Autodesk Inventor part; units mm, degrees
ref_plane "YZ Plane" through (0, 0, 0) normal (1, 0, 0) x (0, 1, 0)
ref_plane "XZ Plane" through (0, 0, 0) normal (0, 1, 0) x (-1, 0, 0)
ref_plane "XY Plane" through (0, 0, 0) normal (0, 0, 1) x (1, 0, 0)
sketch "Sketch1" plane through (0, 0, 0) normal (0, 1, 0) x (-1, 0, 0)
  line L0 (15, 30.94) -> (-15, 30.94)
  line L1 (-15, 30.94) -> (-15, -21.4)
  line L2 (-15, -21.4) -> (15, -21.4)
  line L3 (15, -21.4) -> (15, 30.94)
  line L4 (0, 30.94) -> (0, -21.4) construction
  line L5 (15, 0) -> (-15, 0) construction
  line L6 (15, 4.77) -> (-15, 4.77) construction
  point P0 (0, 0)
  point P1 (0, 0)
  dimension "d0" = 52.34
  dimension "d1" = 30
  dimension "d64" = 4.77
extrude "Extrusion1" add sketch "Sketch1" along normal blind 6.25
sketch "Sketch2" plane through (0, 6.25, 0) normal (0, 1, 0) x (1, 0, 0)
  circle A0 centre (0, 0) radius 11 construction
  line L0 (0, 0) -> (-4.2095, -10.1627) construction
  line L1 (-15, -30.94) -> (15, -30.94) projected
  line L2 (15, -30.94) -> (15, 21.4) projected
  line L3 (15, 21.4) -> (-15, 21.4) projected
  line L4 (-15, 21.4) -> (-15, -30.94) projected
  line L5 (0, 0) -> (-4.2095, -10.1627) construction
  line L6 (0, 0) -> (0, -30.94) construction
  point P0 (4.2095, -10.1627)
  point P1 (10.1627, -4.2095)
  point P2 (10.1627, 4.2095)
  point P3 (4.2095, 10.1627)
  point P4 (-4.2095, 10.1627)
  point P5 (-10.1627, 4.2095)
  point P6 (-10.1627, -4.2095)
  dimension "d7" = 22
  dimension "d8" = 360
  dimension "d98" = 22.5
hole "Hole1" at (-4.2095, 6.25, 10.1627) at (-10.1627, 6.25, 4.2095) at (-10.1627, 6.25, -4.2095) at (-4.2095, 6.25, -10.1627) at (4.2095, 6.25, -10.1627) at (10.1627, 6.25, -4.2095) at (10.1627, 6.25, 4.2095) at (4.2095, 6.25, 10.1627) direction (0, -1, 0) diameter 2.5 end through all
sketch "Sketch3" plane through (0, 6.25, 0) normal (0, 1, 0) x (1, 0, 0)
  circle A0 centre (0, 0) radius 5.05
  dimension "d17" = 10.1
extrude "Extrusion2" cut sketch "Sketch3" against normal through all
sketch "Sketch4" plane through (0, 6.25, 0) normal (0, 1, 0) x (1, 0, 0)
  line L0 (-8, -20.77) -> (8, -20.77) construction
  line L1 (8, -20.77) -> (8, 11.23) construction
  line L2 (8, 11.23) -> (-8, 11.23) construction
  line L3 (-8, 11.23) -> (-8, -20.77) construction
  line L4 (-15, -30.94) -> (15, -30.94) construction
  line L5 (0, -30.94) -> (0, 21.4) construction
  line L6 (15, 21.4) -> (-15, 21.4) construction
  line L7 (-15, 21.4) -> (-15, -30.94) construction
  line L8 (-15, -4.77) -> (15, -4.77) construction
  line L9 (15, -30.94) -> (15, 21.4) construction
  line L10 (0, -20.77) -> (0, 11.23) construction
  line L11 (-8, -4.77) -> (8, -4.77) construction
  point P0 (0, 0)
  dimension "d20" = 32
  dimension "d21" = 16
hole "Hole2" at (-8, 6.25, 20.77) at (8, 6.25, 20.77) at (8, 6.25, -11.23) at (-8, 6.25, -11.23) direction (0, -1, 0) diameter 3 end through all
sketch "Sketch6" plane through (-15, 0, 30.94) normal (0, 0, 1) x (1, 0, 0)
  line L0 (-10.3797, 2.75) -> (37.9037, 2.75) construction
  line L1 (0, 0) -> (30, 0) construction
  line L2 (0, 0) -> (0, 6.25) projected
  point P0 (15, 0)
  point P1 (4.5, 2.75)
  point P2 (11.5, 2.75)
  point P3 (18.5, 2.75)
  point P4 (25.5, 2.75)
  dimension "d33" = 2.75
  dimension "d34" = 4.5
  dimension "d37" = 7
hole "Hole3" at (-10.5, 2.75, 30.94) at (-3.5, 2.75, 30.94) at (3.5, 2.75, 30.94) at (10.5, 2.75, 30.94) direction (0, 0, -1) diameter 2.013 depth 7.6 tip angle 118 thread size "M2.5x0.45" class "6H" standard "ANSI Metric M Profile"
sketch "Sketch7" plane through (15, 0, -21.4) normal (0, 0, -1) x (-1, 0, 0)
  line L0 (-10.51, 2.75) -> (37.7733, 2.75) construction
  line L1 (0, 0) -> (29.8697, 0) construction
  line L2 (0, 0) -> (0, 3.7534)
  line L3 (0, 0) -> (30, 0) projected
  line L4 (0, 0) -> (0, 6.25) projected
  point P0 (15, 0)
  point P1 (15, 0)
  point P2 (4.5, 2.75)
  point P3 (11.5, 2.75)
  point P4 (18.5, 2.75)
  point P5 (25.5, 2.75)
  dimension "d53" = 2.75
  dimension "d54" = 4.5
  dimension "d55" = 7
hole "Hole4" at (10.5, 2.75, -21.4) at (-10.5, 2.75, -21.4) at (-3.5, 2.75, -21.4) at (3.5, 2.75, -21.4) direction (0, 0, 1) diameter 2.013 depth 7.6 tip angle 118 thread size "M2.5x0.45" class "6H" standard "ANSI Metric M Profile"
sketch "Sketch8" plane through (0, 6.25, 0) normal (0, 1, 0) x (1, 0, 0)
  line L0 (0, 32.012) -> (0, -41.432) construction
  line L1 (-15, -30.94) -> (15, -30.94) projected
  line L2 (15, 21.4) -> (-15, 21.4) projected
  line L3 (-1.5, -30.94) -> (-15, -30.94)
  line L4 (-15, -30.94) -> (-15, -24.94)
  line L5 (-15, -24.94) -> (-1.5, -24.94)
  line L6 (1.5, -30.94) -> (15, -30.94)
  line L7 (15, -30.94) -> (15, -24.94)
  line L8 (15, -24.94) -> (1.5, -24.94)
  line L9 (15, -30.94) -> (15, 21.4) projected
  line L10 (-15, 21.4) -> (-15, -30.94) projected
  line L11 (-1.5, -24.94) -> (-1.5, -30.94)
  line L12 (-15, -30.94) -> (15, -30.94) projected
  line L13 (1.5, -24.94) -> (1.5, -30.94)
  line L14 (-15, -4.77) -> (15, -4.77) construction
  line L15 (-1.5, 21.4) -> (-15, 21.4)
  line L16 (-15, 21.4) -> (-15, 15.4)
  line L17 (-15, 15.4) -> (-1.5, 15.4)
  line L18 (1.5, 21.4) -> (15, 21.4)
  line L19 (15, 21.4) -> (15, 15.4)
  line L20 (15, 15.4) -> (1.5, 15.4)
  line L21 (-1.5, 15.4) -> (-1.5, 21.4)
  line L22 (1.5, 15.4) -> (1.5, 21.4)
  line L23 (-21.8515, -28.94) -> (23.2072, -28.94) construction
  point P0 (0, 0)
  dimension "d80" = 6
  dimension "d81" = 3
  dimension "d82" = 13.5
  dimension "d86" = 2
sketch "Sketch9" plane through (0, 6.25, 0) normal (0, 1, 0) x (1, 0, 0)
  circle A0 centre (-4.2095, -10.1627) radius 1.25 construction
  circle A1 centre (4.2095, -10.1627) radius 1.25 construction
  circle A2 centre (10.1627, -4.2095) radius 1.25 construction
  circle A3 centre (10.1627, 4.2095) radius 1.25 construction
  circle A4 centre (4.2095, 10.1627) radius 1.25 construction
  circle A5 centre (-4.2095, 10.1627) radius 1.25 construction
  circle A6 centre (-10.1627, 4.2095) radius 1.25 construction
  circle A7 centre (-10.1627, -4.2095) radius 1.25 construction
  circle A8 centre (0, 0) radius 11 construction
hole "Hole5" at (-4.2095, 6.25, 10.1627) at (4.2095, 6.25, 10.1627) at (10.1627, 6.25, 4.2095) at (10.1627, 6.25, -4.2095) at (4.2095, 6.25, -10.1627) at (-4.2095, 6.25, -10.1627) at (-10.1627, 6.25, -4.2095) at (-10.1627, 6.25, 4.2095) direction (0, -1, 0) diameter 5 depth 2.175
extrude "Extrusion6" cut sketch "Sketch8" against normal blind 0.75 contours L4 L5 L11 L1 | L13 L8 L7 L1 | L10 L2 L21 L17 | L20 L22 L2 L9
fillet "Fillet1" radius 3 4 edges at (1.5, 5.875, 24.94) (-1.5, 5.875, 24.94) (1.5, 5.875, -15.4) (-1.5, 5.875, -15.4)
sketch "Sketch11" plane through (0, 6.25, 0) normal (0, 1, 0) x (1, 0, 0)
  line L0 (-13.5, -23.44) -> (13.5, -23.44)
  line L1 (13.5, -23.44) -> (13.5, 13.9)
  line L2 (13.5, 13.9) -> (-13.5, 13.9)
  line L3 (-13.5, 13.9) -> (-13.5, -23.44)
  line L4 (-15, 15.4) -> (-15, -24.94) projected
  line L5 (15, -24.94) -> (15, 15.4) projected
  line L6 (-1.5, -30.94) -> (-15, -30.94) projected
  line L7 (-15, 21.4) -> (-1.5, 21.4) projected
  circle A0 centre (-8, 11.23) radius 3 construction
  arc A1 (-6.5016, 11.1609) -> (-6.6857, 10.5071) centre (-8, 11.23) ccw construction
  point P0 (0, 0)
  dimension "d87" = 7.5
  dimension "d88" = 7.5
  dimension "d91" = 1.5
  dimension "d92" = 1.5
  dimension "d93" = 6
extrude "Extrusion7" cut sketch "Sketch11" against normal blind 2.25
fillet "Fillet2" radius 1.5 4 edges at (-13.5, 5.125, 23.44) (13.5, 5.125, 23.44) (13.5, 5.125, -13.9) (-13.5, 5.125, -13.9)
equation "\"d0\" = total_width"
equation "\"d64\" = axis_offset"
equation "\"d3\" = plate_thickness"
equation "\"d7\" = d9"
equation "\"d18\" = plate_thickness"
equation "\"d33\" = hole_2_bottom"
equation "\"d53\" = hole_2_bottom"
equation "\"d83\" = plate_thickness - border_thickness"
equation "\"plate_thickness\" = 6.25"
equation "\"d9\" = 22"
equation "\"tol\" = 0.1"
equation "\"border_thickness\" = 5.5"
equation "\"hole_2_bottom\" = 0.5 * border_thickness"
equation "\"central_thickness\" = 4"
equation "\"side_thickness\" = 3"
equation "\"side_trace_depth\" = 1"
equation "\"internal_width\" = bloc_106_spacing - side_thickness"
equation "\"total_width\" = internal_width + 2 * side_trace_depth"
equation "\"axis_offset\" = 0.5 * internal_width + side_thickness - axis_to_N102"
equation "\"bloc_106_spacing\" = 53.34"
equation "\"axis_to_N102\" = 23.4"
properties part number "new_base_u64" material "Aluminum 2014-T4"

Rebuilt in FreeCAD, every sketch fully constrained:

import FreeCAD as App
import Part
import Sketcher
from FreeCAD import Vector


def edges_at(feature, points):
    """Names of the edges that pass closest to the given points."""
    edges = feature.Shape.Edges
    near = lambda p: min(range(len(edges)), key=lambda i: edges[i].distToShape(Part.Vertex(*p))[0])
    return sorted({f"Edge{near(p) + 1}" for p in points})

doc = App.newDocument("Part")
params = doc.addObject("Spreadsheet::Sheet", "Params")
for row, (alias, value) in enumerate([
    ("sketch1_width", "30 mm"),
    ("sketch1_height", "52.34 mm"),
    ("pad1_length", "6.25 mm"),
    ("sketch2_diameter", "2.5 mm"),
    ("hole_diameter", "2.5 mm"),
    ("sketch3_diameter", "10.1 mm"),
    ("sketch4_diameter", "3 mm"),
    ("hole2_diameter", "3 mm"),
    ("hole3_diameter", "2.013 mm"),
    ("hole3_depth", "7.6 mm"),
    ("hole4_diameter", "2.013 mm"),
    ("hole4_depth", "7.6 mm"),
    ("sketch7_diameter", "5 mm"),
    ("hole5_diameter", "5 mm"),
    ("hole5_depth", "2.175 mm"),
    ("sketch8_height", "6 mm"),
    ("sketch8_width", "13.5 mm"),
    ("pocket2_length", "0.75 mm"),
    ("fillet_radius", "3 mm"),
    ("sketch9_width", "27 mm"),
    ("sketch9_height", "37.34 mm"),
    ("pocket3_length", "2.25 mm"),
    ("fillet2_radius", "1.5 mm"),
], start=1):
    params.set(f"A{row}", alias)
    params.set(f"B{row}", "=" + value)
    params.setAlias(f"B{row}", alias)

body = doc.addObject("PartDesign::Body", "Body")

# Sketch on XZ plane
sketch1 = body.newObject("Sketcher::SketchObject", "Sketch")
sketch1.AttachmentSupport = (doc.getObject("XZ_Plane"), [""])
sketch1.MapMode = "FlatFace"
sketch1.addGeometry([
    Part.LineSegment(Vector(-15, -21.4, 0), Vector(-15, 30.94, 0)),
    Part.LineSegment(Vector(-15, 30.94, 0), Vector(15, 30.94, 0)),
    Part.LineSegment(Vector(15, 30.94, 0), Vector(15, -21.4, 0)),
    Part.LineSegment(Vector(15, -21.4, 0), Vector(-15, -21.4, 0)),
], False)
sketch1.addConstraint([
    Sketcher.Constraint("Coincident", 0, 2, 1, 1),
    Sketcher.Constraint("Coincident", 1, 2, 2, 1),
    Sketcher.Constraint("Coincident", 2, 2, 3, 1),
    Sketcher.Constraint("Coincident", 3, 2, 0, 1),
    Sketcher.Constraint("Vertical", 0),
    Sketcher.Constraint("Horizontal", 1),
    Sketcher.Constraint("Vertical", 2),
    Sketcher.Constraint("Horizontal", 3),
    Sketcher.Constraint("DistanceX", 1, 1, 1, 2, 30.0),
    Sketcher.Constraint("DistanceY", 0, 1, 0, 2, 52.34),
    Sketcher.Constraint("DistanceX", 0, 2, -1, 1, 15.0),
    Sketcher.Constraint("DistanceY", 2, 2, -1, 1, 21.4),
])
sketch1.setExpression("Constraints[8]", "Params.sketch1_width")
sketch1.setExpression("Constraints[9]", "Params.sketch1_height")
pad1 = body.newObject("PartDesign::Pad", "Pad")
pad1.Profile = sketch1
pad1.setExpression("Length", "Params.pad1_length")
pad1.Reversed = True

# Sketch on XZ plane
sketch2 = body.newObject("Sketcher::SketchObject", "Sketch001")
sketch2.AttachmentSupport = (doc.getObject("XZ_Plane"), [""])
sketch2.MapMode = "FlatFace"
sketch2.AttachmentOffset = App.Placement(Vector(0, 0, -6.25), App.Rotation())
sketch2.addGeometry([
    Part.Circle(Vector(-4.2095, 10.1627, 0), Vector(0, 0, 1), 1.25),  # 0
    Part.Circle(Vector(-10.1627, 4.2095, 0), Vector(0, 0, 1), 1.25),  # 1
    Part.Circle(Vector(-10.1627, -4.2095, 0), Vector(0, 0, 1), 1.25),  # 2
    Part.Circle(Vector(-4.2095, -10.1627, 0), Vector(0, 0, 1), 1.25),  # 3
    Part.Circle(Vector(4.2095, -10.1627, 0), Vector(0, 0, 1), 1.25),  # 4
    Part.Circle(Vector(10.1627, -4.2095, 0), Vector(0, 0, 1), 1.25),  # 5
    Part.Circle(Vector(10.1627, 4.2095, 0), Vector(0, 0, 1), 1.25),  # 6
    Part.Circle(Vector(4.2095, 10.1627, 0), Vector(0, 0, 1), 1.25),  # 7
], False)
sketch2.addConstraint([
    Sketcher.Constraint("Equal", 0, 1),
    Sketcher.Constraint("Equal", 1, 2),
    Sketcher.Constraint("Equal", 2, 3),
    Sketcher.Constraint("Equal", 3, 4),
    Sketcher.Constraint("Equal", 4, 5),
    Sketcher.Constraint("Equal", 5, 6),
    Sketcher.Constraint("Equal", 6, 7),
    Sketcher.Constraint("Symmetric", 0, 3, 4, 3, -1, 1),
    Sketcher.Constraint("Symmetric", 1, 3, 5, 3, -1, 1),
    Sketcher.Constraint("Symmetric", 2, 3, 6, 3, -1, 1),
    Sketcher.Constraint("Symmetric", 3, 3, 7, 3, -1, 1),
    Sketcher.Constraint("Symmetric", 3, 3, 4, 3, -2),
    Sketcher.Constraint("Symmetric", 2, 3, 5, 3, -2),
    Sketcher.Constraint("Diameter", 0, 2.5),
    Sketcher.Constraint("DistanceY", 2, 3, 1, 3, 8.419),
    Sketcher.Constraint("DistanceX", 3, 3, 4, 3, 8.419),
    Sketcher.Constraint("DistanceY", -1, 1, 0, 3, 10.1627),
    Sketcher.Constraint("DistanceX", 1, 3, -1, 1, 10.1627),
])
sketch2.setExpression("Constraints[13]", "Params.sketch2_diameter")
doc.recompute()
hole = body.newObject("PartDesign::Hole", "Hole")
hole.Profile = sketch2
hole.ThreadType = "None"
hole.setExpression("Diameter", "Params.hole_diameter")
hole.DepthType = "ThroughAll"
hole.Reversed = True

# Sketch on XZ plane
sketch3 = body.newObject("Sketcher::SketchObject", "Sketch002")
sketch3.AttachmentSupport = (doc.getObject("XZ_Plane"), [""])
sketch3.MapMode = "FlatFace"
sketch3.AttachmentOffset = App.Placement(Vector(0, 0, -6.25), App.Rotation())
sketch3.addGeometry(Part.Circle(Vector(0, 0, 0), Vector(0, 0, 1), 5.05), False)
sketch3.addConstraint([
    Sketcher.Constraint("Coincident", 0, 3, -1, 1),
    Sketcher.Constraint("Diameter", 0, 10.1),
])
sketch3.setExpression("Constraints[1]", "Params.sketch3_diameter")
pocket1 = body.newObject("PartDesign::Pocket", "Pocket")
pocket1.Profile = sketch3
pocket1.Type = "ThroughAll"
pocket1.Reversed = True

# Sketch on XZ plane
sketch4 = body.newObject("Sketcher::SketchObject", "Sketch003")
sketch4.AttachmentSupport = (doc.getObject("XZ_Plane"), [""])
sketch4.MapMode = "FlatFace"
sketch4.AttachmentOffset = App.Placement(Vector(0, 0, -6.25), App.Rotation())
sketch4.addGeometry([
    Part.Circle(Vector(-8, 20.77, 0), Vector(0, 0, 1), 1.5),
    Part.Circle(Vector(8, 20.77, 0), Vector(0, 0, 1), 1.5),
    Part.Circle(Vector(8, -11.23, 0), Vector(0, 0, 1), 1.5),
    Part.Circle(Vector(-8, -11.23, 0), Vector(0, 0, 1), 1.5),
], False)
sketch4.addConstraint([
    Sketcher.Constraint("Equal", 0, 1),
    Sketcher.Constraint("Equal", 1, 2),
    Sketcher.Constraint("Equal", 2, 3),
    Sketcher.Constraint("Symmetric", 0, 3, 1, 3, -2),
    Sketcher.Constraint("Symmetric", 2, 3, 3, 3, -2),
    Sketcher.Constraint("Vertical", 1, 3, 2, 3),
    Sketcher.Constraint("Diameter", 0, 3.0),
    Sketcher.Constraint("DistanceX", 0, 3, -1, 1, 8.0),
    Sketcher.Constraint("DistanceY", 2, 3, 1, 3, 32.0),
    Sketcher.Constraint("DistanceY", -1, 1, 0, 3, 20.77),
])
sketch4.setExpression("Constraints[6]", "Params.sketch4_diameter")
doc.recompute()
hole2 = body.newObject("PartDesign::Hole", "Hole001")
hole2.Profile = sketch4
hole2.ThreadType = "None"
hole2.setExpression("Diameter", "Params.hole2_diameter")
hole2.DepthType = "ThroughAll"
hole2.Reversed = True

# Sketch on XY plane
sketch5 = body.newObject("Sketcher::SketchObject", "Sketch004")
sketch5.AttachmentSupport = (doc.getObject("XY_Plane"), [""])
sketch5.MapMode = "FlatFace"
sketch5.AttachmentOffset = App.Placement(Vector(0, 0, 30.94), App.Rotation())
sketch5.addGeometry([
    Part.Circle(Vector(-10.5, 2.75, 0), Vector(0, 0, 1), 1.0065),
    Part.Circle(Vector(-3.5, 2.75, 0), Vector(0, 0, 1), 1.0065),
    Part.Circle(Vector(3.5, 2.75, 0), Vector(0, 0, 1), 1.0065),
    Part.Circle(Vector(10.5, 2.75, 0), Vector(0, 0, 1), 1.0065),
], False)
sketch5.addConstraint([
    Sketcher.Constraint("Equal", 0, 1),
    Sketcher.Constraint("Equal", 1, 2),
    Sketcher.Constraint("Equal", 2, 3),
    Sketcher.Constraint("Symmetric", 1, 3, 2, 3, -2),
    Sketcher.Constraint("Symmetric", 0, 3, 3, 3, -2),
    Sketcher.Constraint("Horizontal", 0, 3, 1, 3),
    Sketcher.Constraint("Diameter", 0, 2.013),
    Sketcher.Constraint("DistanceX", 0, 3, 1, 3, 7.0),
    Sketcher.Constraint("DistanceX", 1, 3, 2, 3, 7.0),
    Sketcher.Constraint("DistanceY", -1, 1, 0, 3, 2.75),
])
doc.recompute()
hole3 = body.newObject("PartDesign::Hole", "Hole002")
hole3.Profile = sketch5
hole3.ThreadType = "None"
hole3.setExpression("Diameter", "Params.hole3_diameter")
hole3.DepthType = "Dimension"
hole3.setExpression("Depth", "Params.hole3_depth")
hole3.DrillPoint = "Angled"
hole3.DrillPointAngle = 118

# Sketch on XY plane
sketch6 = body.newObject("Sketcher::SketchObject", "Sketch005")
sketch6.AttachmentSupport = (doc.getObject("XY_Plane"), [""])
sketch6.MapMode = "FlatFace"
sketch6.AttachmentOffset = App.Placement(Vector(0, 0, -21.4), App.Rotation())
sketch6.addGeometry([
    Part.Circle(Vector(10.5, 2.75, 0), Vector(0, 0, 1), 1.0065),
    Part.Circle(Vector(-10.5, 2.75, 0), Vector(0, 0, 1), 1.0065),
    Part.Circle(Vector(-3.5, 2.75, 0), Vector(0, 0, 1), 1.0065),
    Part.Circle(Vector(3.5, 2.75, 0), Vector(0, 0, 1), 1.0065),
], False)
sketch6.addConstraint([
    Sketcher.Constraint("Equal", 0, 1),
    Sketcher.Constraint("Equal", 1, 2),
    Sketcher.Constraint("Equal", 2, 3),
    Sketcher.Constraint("Symmetric", 0, 3, 1, 3, -2),
    Sketcher.Constraint("Symmetric", 2, 3, 3, 3, -2),
    Sketcher.Constraint("Horizontal", 1, 3, 2, 3),
    Sketcher.Constraint("Diameter", 0, 2.013),
    Sketcher.Constraint("DistanceX", 1, 3, 0, 3, 21.0),
    Sketcher.Constraint("DistanceX", 1, 3, 2, 3, 7.0),
    Sketcher.Constraint("DistanceY", -1, 1, 0, 3, 2.75),
])
doc.recompute()
hole4 = body.newObject("PartDesign::Hole", "Hole003")
hole4.Profile = sketch6
hole4.ThreadType = "None"
hole4.setExpression("Diameter", "Params.hole4_diameter")
hole4.DepthType = "Dimension"
hole4.setExpression("Depth", "Params.hole4_depth")
hole4.DrillPoint = "Angled"
hole4.DrillPointAngle = 118
hole4.Reversed = True

# Sketch on XZ plane
sketch7 = body.newObject("Sketcher::SketchObject", "Sketch006")
sketch7.AttachmentSupport = (doc.getObject("XZ_Plane"), [""])
sketch7.MapMode = "FlatFace"
sketch7.AttachmentOffset = App.Placement(Vector(0, 0, -6.25), App.Rotation())
sketch7.addGeometry([
    Part.Circle(Vector(-4.2095, 10.1627, 0), Vector(0, 0, 1), 2.5),  # 0
    Part.Circle(Vector(4.2095, 10.1627, 0), Vector(0, 0, 1), 2.5),  # 1
    Part.Circle(Vector(10.1627, 4.2095, 0), Vector(0, 0, 1), 2.5),  # 2
    Part.Circle(Vector(10.1627, -4.2095, 0), Vector(0, 0, 1), 2.5),  # 3
    Part.Circle(Vector(4.2095, -10.1627, 0), Vector(0, 0, 1), 2.5),  # 4
    Part.Circle(Vector(-4.2095, -10.1627, 0), Vector(0, 0, 1), 2.5),  # 5
    Part.Circle(Vector(-10.1627, -4.2095, 0), Vector(0, 0, 1), 2.5),  # 6
    Part.Circle(Vector(-10.1627, 4.2095, 0), Vector(0, 0, 1), 2.5),  # 7
], False)
sketch7.addConstraint([
    Sketcher.Constraint("Equal", 0, 1),
    Sketcher.Constraint("Equal", 1, 2),
    Sketcher.Constraint("Equal", 2, 3),
    Sketcher.Constraint("Equal", 3, 4),
    Sketcher.Constraint("Equal", 4, 5),
    Sketcher.Constraint("Equal", 5, 6),
    Sketcher.Constraint("Equal", 6, 7),
    Sketcher.Constraint("Symmetric", 0, 3, 4, 3, -1, 1),
    Sketcher.Constraint("Symmetric", 1, 3, 5, 3, -1, 1),
    Sketcher.Constraint("Symmetric", 2, 3, 6, 3, -1, 1),
    Sketcher.Constraint("Symmetric", 3, 3, 7, 3, -1, 1),
    Sketcher.Constraint("Symmetric", 0, 3, 1, 3, -2),
    Sketcher.Constraint("Symmetric", 3, 3, 6, 3, -2),
    Sketcher.Constraint("Diameter", 0, 5.0),
    Sketcher.Constraint("DistanceX", 0, 3, 1, 3, 8.419),
    Sketcher.Constraint("DistanceY", 3, 3, 2, 3, 8.419),
    Sketcher.Constraint("DistanceY", -1, 1, 0, 3, 10.1627),
    Sketcher.Constraint("DistanceX", -1, 1, 2, 3, 10.1627),
])
sketch7.setExpression("Constraints[13]", "Params.sketch7_diameter")
doc.recompute()
hole5 = body.newObject("PartDesign::Hole", "Hole004")
hole5.Profile = sketch7
hole5.ThreadType = "None"
hole5.setExpression("Diameter", "Params.hole5_diameter")
hole5.DepthType = "Dimension"
hole5.setExpression("Depth", "Params.hole5_depth")
hole5.DrillPoint = "Flat"
hole5.Reversed = True

# Sketch on XZ plane
sketch8 = body.newObject("Sketcher::SketchObject", "Sketch007")
sketch8.AttachmentSupport = (doc.getObject("XZ_Plane"), [""])
sketch8.MapMode = "FlatFace"
sketch8.AttachmentOffset = App.Placement(Vector(0, 0, -6.25), App.Rotation())
sketch8.addGeometry([
    Part.LineSegment(Vector(-15, 24.94, 0), Vector(-15, 30.94, 0)),  # 0
    Part.LineSegment(Vector(-15, 30.94, 0), Vector(-1.5, 30.94, 0)),  # 1
    Part.LineSegment(Vector(-1.5, 30.94, 0), Vector(-1.5, 24.94, 0)),  # 2
    Part.LineSegment(Vector(-1.5, 24.94, 0), Vector(-15, 24.94, 0)),  # 3
    Part.LineSegment(Vector(1.5, 24.94, 0), Vector(1.5, 30.94, 0)),  # 4
    Part.LineSegment(Vector(1.5, 30.94, 0), Vector(15, 30.94, 0)),  # 5
    Part.LineSegment(Vector(15, 30.94, 0), Vector(15, 24.94, 0)),  # 6
    Part.LineSegment(Vector(15, 24.94, 0), Vector(1.5, 24.94, 0)),  # 7
    Part.LineSegment(Vector(-15, -21.4, 0), Vector(-15, -15.4, 0)),  # 8
    Part.LineSegment(Vector(-15, -15.4, 0), Vector(-1.5, -15.4, 0)),  # 9
    Part.LineSegment(Vector(-1.5, -15.4, 0), Vector(-1.5, -21.4, 0)),  # 10
    Part.LineSegment(Vector(-1.5, -21.4, 0), Vector(-15, -21.4, 0)),  # 11
    Part.LineSegment(Vector(1.5, -15.4, 0), Vector(15, -15.4, 0)),  # 12
    Part.LineSegment(Vector(15, -15.4, 0), Vector(15, -21.4, 0)),  # 13
    Part.LineSegment(Vector(15, -21.4, 0), Vector(1.5, -21.4, 0)),  # 14
    Part.LineSegment(Vector(1.5, -21.4, 0), Vector(1.5, -15.4, 0)),  # 15
], False)
sketch8.addConstraint([
    Sketcher.Constraint("Coincident", 0, 2, 1, 1),
    Sketcher.Constraint("Coincident", 1, 2, 2, 1),
    Sketcher.Constraint("Coincident", 2, 2, 3, 1),
    Sketcher.Constraint("Coincident", 3, 2, 0, 1),
    Sketcher.Constraint("Coincident", 4, 2, 5, 1),
    Sketcher.Constraint("Coincident", 5, 2, 6, 1),
    Sketcher.Constraint("Coincident", 6, 2, 7, 1),
    Sketcher.Constraint("Coincident", 7, 2, 4, 1),
    Sketcher.Constraint("Coincident", 8, 2, 9, 1),
    Sketcher.Constraint("Coincident", 9, 2, 10, 1),
    Sketcher.Constraint("Coincident", 10, 2, 11, 1),
    Sketcher.Constraint("Coincident", 11, 2, 8, 1),
    Sketcher.Constraint("Coincident", 12, 2, 13, 1),
    Sketcher.Constraint("Coincident", 13, 2, 14, 1),
    Sketcher.Constraint("Coincident", 14, 2, 15, 1),
    Sketcher.Constraint("Coincident", 15, 2, 12, 1),
    Sketcher.Constraint("Vertical", 0),
    Sketcher.Constraint("Horizontal", 1),
    Sketcher.Constraint("Vertical", 2),
    Sketcher.Constraint("Horizontal", 3),
    Sketcher.Constraint("Vertical", 4),
    Sketcher.Constraint("Horizontal", 5),
    Sketcher.Constraint("Vertical", 6),
    Sketcher.Constraint("Horizontal", 7),
    Sketcher.Constraint("Vertical", 8),
    Sketcher.Constraint("Horizontal", 9),
    Sketcher.Constraint("Vertical", 10),
    Sketcher.Constraint("Horizontal", 11),
    Sketcher.Constraint("Horizontal", 12),
    Sketcher.Constraint("Vertical", 13),
    Sketcher.Constraint("Horizontal", 14),
    Sketcher.Constraint("Vertical", 15),
    Sketcher.Constraint("Symmetric", 1, 2, 4, 2, -2),
    Sketcher.Constraint("Symmetric", 3, 2, 6, 2, -2),
    Sketcher.Constraint("Symmetric", 8, 2, 12, 2, -2),
    Sketcher.Constraint("Symmetric", 10, 2, 14, 2, -2),
    Sketcher.Constraint("Vertical", 3, 2, 8, 2),
    Sketcher.Constraint("Vertical", 2, 2, 9, 2),
    Sketcher.Constraint("Equal", 6, 8),
    Sketcher.Constraint("DistanceY", 0, 1, 0, 2, 6.0),
    Sketcher.Constraint("DistanceX", 1, 1, 1, 2, 13.5),
    Sketcher.Constraint("DistanceX", 1, 2, 4, 2, 3.0),
    Sketcher.Constraint("DistanceY", 8, 2, -1, 1, 15.4),
    Sketcher.Constraint("DistanceY", -1, 1, 0, 2, 30.94),
])
sketch8.setExpression("Constraints[39]", "Params.sketch8_height")
sketch8.setExpression("Constraints[40]", "Params.sketch8_width")
pocket2 = body.newObject("PartDesign::Pocket", "Pocket001")
pocket2.Profile = sketch8
pocket2.setExpression("Length", "Params.pocket2_length")
pocket2.Reversed = True
doc.recompute()

fillet = body.newObject("PartDesign::Fillet", "Fillet")
fillet.Base = (pocket2, edges_at(pocket2, [
    (1.5, 5.875, 24.94),
    (-1.5, 5.875, 24.94),
    (1.5, 5.875, -15.4),
    (-1.5, 5.875, -15.4),
]))
fillet.setExpression("Radius", "Params.fillet_radius")

# Sketch on XZ plane
sketch9 = body.newObject("Sketcher::SketchObject", "Sketch008")
sketch9.AttachmentSupport = (doc.getObject("XZ_Plane"), [""])
sketch9.MapMode = "FlatFace"
sketch9.AttachmentOffset = App.Placement(Vector(0, 0, -6.25), App.Rotation())
sketch9.addGeometry([
    Part.LineSegment(Vector(-13.5, -13.9, 0), Vector(-13.5, 23.44, 0)),
    Part.LineSegment(Vector(-13.5, 23.44, 0), Vector(13.5, 23.44, 0)),
    Part.LineSegment(Vector(13.5, 23.44, 0), Vector(13.5, -13.9, 0)),
    Part.LineSegment(Vector(13.5, -13.9, 0), Vector(-13.5, -13.9, 0)),
], False)
sketch9.addConstraint([
    Sketcher.Constraint("Coincident", 0, 2, 1, 1),
    Sketcher.Constraint("Coincident", 1, 2, 2, 1),
    Sketcher.Constraint("Coincident", 2, 2, 3, 1),
    Sketcher.Constraint("Coincident", 3, 2, 0, 1),
    Sketcher.Constraint("Vertical", 0),
    Sketcher.Constraint("Horizontal", 1),
    Sketcher.Constraint("Vertical", 2),
    Sketcher.Constraint("Horizontal", 3),
    Sketcher.Constraint("DistanceX", 1, 1, 1, 2, 27.0),
    Sketcher.Constraint("DistanceY", 0, 1, 0, 2, 37.34),
    Sketcher.Constraint("DistanceX", 0, 2, -1, 1, 13.5),
    Sketcher.Constraint("DistanceY", 2, 2, -1, 1, 13.9),
])
sketch9.setExpression("Constraints[8]", "Params.sketch9_width")
sketch9.setExpression("Constraints[9]", "Params.sketch9_height")
pocket3 = body.newObject("PartDesign::Pocket", "Pocket002")
pocket3.Profile = sketch9
pocket3.setExpression("Length", "Params.pocket3_length")
pocket3.Reversed = True
doc.recompute()

fillet2 = body.newObject("PartDesign::Fillet", "Fillet001")
fillet2.Base = (pocket3, edges_at(pocket3, [
    (-13.5, 5.125, 23.44),
    (13.5, 5.125, 23.44),
    (13.5, 5.125, -13.9),
    (-13.5, 5.125, -13.9),
]))
fillet2.setExpression("Radius", "Params.fillet2_radius")

doc.recompute()
